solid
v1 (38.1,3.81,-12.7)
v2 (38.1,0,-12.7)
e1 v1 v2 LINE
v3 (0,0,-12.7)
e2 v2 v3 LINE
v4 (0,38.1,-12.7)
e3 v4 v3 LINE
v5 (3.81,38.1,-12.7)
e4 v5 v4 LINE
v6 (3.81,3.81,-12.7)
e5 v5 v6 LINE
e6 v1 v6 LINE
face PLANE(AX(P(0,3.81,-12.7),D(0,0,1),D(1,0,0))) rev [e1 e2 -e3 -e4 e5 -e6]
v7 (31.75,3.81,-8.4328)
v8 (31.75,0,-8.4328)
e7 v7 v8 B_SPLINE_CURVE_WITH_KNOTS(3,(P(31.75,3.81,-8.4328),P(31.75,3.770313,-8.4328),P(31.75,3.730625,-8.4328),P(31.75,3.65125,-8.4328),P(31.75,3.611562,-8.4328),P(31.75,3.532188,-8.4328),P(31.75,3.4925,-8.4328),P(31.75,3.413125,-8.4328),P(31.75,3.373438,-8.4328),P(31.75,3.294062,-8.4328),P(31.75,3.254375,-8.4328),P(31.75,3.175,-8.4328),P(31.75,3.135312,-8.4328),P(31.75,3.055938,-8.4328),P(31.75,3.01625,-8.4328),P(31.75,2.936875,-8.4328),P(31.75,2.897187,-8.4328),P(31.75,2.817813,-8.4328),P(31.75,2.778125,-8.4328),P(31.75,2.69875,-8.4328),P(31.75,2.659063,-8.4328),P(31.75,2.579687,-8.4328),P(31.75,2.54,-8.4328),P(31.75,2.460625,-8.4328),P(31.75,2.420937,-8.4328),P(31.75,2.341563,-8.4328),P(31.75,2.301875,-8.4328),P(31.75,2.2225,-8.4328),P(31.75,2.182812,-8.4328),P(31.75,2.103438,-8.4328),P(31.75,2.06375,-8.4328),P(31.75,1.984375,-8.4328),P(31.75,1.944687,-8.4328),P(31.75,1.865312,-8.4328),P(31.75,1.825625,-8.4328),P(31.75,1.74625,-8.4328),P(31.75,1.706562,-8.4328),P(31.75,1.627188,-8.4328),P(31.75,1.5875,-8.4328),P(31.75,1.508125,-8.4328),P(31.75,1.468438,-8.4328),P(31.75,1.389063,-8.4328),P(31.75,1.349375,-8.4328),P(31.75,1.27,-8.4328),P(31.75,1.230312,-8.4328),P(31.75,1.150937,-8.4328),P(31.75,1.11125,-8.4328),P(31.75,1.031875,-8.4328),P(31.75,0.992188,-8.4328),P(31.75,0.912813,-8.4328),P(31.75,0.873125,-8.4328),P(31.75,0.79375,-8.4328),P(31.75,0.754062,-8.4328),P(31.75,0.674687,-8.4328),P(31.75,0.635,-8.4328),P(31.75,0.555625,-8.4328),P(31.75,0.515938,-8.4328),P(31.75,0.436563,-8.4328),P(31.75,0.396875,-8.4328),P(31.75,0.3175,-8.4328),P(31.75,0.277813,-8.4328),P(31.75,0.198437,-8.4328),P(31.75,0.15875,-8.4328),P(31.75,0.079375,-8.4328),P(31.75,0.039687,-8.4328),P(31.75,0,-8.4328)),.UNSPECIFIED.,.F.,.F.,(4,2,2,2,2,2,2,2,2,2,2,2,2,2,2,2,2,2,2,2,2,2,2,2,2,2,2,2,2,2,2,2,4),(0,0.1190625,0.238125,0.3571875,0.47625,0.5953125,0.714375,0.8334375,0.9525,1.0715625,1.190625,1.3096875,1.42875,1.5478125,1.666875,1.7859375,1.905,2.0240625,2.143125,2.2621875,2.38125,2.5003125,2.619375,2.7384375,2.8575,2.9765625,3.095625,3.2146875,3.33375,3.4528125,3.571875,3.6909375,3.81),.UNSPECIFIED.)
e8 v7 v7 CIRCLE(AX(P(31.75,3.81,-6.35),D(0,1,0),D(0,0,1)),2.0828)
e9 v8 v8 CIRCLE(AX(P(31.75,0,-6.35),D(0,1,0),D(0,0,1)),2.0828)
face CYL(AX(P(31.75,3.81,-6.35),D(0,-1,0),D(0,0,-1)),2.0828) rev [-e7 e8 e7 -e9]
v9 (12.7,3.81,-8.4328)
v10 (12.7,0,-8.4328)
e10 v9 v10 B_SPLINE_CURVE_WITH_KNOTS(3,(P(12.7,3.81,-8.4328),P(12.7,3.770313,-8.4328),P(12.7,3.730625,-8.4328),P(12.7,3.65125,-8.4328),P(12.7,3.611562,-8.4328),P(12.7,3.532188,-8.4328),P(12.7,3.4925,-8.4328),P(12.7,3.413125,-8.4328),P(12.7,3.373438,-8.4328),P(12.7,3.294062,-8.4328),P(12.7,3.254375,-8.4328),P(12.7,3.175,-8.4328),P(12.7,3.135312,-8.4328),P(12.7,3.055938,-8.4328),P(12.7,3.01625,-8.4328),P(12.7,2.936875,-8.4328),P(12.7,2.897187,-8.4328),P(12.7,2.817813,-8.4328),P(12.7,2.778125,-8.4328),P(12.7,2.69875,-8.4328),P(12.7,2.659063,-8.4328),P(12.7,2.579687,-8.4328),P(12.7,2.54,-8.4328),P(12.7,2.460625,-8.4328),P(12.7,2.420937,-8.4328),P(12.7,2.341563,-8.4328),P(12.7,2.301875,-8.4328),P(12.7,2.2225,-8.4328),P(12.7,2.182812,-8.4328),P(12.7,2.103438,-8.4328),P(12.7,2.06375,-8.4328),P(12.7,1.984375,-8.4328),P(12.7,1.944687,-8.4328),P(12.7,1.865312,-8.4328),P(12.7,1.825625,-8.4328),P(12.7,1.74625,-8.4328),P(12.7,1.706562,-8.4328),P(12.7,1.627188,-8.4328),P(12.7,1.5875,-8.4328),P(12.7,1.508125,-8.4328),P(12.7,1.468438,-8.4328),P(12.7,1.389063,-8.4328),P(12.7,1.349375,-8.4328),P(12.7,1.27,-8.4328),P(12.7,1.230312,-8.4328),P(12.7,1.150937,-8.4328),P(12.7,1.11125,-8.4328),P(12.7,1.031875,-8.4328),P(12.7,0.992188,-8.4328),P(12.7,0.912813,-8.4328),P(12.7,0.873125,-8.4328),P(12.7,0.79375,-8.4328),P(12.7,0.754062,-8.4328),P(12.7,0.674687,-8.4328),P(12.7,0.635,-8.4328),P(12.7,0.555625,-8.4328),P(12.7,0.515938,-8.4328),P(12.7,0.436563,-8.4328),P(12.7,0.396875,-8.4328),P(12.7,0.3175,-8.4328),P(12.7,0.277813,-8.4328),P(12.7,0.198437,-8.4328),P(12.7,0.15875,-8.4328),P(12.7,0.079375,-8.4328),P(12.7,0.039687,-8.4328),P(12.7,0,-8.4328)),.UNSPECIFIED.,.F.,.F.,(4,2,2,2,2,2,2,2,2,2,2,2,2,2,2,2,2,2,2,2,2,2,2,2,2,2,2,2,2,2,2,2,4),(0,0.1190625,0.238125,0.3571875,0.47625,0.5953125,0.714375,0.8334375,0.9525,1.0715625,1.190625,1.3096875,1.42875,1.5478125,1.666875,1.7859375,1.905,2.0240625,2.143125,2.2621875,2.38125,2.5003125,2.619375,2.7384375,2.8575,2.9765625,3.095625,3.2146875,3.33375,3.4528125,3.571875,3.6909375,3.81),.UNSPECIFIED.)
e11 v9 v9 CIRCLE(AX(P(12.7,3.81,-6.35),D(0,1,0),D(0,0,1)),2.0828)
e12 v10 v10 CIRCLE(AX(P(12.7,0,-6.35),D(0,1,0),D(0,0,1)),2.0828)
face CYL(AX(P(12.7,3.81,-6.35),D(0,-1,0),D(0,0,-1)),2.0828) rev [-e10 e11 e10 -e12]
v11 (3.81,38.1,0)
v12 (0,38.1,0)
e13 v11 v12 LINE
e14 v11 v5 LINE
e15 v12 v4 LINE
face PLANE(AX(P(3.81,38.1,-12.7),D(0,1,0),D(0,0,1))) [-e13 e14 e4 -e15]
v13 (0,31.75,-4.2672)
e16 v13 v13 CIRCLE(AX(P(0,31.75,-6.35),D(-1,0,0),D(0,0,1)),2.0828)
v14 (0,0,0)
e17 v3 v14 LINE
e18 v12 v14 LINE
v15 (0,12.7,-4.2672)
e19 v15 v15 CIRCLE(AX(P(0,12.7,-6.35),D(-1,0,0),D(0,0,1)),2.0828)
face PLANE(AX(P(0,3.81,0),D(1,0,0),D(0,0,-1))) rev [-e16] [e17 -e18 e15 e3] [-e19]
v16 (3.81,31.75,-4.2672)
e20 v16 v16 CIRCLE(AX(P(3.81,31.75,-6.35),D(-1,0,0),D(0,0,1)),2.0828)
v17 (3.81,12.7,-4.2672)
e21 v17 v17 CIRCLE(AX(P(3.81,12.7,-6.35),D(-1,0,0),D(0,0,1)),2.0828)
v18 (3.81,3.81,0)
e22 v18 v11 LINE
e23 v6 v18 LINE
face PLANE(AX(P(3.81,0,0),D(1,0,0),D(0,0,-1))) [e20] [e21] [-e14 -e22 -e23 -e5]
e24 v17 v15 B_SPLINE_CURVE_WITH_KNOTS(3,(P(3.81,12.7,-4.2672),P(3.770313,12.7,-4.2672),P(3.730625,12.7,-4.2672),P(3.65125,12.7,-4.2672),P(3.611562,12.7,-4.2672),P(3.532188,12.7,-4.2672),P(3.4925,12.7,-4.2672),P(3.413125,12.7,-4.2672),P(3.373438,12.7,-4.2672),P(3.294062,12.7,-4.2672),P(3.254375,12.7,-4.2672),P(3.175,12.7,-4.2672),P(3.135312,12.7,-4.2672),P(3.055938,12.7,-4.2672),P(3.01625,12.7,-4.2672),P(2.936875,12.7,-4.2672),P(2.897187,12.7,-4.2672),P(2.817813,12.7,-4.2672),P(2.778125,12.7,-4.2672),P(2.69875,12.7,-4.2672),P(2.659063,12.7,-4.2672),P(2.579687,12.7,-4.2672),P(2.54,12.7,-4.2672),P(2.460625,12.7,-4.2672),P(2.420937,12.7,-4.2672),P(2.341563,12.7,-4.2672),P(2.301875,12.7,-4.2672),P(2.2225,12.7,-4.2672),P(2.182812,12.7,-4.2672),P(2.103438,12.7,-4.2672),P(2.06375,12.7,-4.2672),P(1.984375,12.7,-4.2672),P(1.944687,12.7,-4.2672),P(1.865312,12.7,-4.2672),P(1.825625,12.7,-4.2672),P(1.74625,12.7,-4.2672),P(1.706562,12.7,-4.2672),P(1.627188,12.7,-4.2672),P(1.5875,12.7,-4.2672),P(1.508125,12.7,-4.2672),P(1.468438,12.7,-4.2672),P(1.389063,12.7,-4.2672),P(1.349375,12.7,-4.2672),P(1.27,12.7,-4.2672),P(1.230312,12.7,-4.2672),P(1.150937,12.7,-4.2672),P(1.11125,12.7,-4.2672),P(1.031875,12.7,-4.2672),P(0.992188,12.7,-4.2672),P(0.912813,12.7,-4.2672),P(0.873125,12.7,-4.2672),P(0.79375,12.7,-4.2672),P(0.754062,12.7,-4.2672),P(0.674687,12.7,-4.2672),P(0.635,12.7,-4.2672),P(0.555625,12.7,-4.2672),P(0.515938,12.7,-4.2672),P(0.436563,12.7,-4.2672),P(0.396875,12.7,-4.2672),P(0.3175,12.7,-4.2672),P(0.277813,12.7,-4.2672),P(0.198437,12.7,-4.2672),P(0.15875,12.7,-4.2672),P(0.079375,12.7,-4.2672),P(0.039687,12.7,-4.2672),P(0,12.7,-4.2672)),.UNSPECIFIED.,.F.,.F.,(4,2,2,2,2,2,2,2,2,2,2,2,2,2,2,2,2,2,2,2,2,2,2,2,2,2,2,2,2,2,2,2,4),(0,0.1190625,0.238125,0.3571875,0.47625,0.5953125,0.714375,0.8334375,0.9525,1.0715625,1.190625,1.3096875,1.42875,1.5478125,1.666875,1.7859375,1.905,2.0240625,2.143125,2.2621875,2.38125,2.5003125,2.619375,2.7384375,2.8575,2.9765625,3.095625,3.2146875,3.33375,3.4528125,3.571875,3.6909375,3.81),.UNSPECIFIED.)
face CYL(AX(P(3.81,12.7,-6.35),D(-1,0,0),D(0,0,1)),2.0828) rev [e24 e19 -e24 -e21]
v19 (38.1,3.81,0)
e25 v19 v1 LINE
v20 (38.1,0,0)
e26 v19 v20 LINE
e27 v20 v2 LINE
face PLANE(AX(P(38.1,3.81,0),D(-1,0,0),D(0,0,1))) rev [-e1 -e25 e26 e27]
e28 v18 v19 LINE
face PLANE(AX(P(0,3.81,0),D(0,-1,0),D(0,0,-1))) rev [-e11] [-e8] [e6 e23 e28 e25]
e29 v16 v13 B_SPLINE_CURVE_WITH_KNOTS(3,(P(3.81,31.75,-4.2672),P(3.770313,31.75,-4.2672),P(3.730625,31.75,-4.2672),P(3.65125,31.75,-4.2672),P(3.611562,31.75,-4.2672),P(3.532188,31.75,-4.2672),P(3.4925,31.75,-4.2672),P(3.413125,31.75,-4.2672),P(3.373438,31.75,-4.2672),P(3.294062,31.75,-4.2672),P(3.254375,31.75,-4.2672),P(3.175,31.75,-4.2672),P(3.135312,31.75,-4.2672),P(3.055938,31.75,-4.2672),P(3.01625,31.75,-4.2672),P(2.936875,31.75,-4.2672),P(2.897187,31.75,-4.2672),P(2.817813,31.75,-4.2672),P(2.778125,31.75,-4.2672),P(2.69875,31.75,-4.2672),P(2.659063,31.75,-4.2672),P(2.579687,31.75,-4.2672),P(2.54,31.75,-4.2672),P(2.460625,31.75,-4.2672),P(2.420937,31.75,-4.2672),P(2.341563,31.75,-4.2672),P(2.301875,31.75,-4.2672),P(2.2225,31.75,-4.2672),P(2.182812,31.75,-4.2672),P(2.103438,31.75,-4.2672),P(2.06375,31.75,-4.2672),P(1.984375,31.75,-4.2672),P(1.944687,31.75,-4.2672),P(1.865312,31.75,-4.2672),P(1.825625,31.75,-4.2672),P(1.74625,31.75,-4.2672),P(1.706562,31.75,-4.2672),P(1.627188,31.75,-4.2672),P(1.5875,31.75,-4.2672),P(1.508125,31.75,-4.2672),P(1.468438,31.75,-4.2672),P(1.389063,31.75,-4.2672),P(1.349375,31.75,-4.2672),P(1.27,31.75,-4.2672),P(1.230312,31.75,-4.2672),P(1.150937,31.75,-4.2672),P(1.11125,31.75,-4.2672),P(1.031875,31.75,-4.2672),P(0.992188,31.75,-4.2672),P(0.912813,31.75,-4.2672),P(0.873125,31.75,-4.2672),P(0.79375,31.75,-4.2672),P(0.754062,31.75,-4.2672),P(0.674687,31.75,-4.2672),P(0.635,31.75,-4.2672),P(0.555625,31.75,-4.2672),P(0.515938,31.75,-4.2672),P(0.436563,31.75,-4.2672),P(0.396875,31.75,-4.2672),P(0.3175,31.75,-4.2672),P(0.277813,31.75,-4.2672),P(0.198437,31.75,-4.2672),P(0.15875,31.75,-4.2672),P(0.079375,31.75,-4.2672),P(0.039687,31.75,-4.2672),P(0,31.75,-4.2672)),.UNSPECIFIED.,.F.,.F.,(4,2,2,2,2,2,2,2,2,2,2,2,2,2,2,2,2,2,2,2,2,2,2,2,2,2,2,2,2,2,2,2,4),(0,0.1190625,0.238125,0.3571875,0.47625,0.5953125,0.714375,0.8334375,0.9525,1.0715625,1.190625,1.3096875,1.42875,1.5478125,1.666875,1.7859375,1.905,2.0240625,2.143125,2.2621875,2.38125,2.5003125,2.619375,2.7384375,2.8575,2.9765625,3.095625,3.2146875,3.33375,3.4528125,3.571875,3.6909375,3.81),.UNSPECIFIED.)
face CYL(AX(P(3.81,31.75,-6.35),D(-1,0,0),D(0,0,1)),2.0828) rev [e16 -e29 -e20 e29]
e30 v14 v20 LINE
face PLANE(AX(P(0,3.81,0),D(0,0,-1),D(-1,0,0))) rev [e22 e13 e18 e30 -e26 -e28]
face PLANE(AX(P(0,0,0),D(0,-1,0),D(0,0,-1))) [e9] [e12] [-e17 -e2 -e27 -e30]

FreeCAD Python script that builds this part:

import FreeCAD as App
import Part
import Sketcher

V = App.Vector
Q = App.Units.Quantity

doc = App.newDocument("Part")
params = doc.addObject("Spreadsheet::Sheet", "Params")
for row, (alias, value) in enumerate([
    ("sketch1_diameter", "0.164 in"),
    ("sketch1_width", "1.5 in"),
    ("sketch1_height", "0.5 in"),
    ("pad1_length", "0.15 in"),
    ("sketch2_diameter", "0.164 in"),
    ("sketch2_width", "1.5 in"),
    ("sketch2_height", "0.5 in"),
    ("pad2_length", "0.15 in"),
], start=1):
    params.set(f"A{row}", alias)
    params.set(f"B{row}", "=" + value)
    params.setAlias(f"B{row}", alias)

body = doc.addObject("PartDesign::Body", "Body")

sketch1 = doc.addObject("Sketcher::SketchObject", "Sketch")
body.addObject(sketch1)
sketch1.AttachmentSupport = (doc.XZ_Plane, [""])
sketch1.MapMode = "FlatFace"
sketch1.addGeometry([
    Part.LineSegment(V(0, -12.7, 0), V(0, 0, 0)),
    Part.LineSegment(V(0, 0, 0), V(38.1, 0, 0)),
    Part.LineSegment(V(38.1, 0, 0), V(38.1, -12.7, 0)),
    Part.LineSegment(V(38.1, -12.7, 0), V(0, -12.7, 0)),
    Part.Circle(V(12.7, -6.3, 0), V(0, 0, 1), 2.1),
    Part.Circle(V(31.8, -6.3, 0), V(0, 0, 1), 2.1),
], False)
sketch1.addConstraint([
    Sketcher.Constraint("Coincident", 0, 2, 1, 1),
    Sketcher.Constraint("Coincident", 1, 2, 2, 1),
    Sketcher.Constraint("Coincident", 2, 2, 3, 1),
    Sketcher.Constraint("Coincident", 3, 2, 0, 1),
    Sketcher.Constraint("Vertical", 0),
    Sketcher.Constraint("Horizontal", 1),
    Sketcher.Constraint("Vertical", 2),
    Sketcher.Constraint("Horizontal", 3),
    Sketcher.Constraint("Coincident", 0, 2, -1, 1),
    Sketcher.Constraint("Equal", 4, 5),
    Sketcher.Constraint("Horizontal", 4, 3, 5, 3),
    Sketcher.Constraint("Diameter", 4, Q("0.164 in")),
    Sketcher.Constraint("DistanceX", 1, 1, 1, 2, Q("1.5 in")),
    Sketcher.Constraint("DistanceY", 0, 1, 0, 2, Q("0.5 in")),
    Sketcher.Constraint("DistanceX", 4, 3, 1, 2, Q("1 in")),
    Sketcher.Constraint("DistanceY", 4, 3, -1, 1, Q("0.25 in")),
    Sketcher.Constraint("DistanceX", -1, 1, 5, 3, Q("1.25 in")),
])
sketch1.setExpression("Constraints[11]", "Params.sketch1_diameter")
sketch1.setExpression("Constraints[12]", "Params.sketch1_width")
sketch1.setExpression("Constraints[13]", "Params.sketch1_height")
pad1 = doc.addObject("PartDesign::Pad", "Pad")
body.addObject(pad1)
pad1.Profile = sketch1
pad1.setExpression("Length", "Params.pad1_length")
pad1.Reversed = True

sketch2 = doc.addObject("Sketcher::SketchObject", "Sketch001")
body.addObject(sketch2)
sketch2.AttachmentSupport = (doc.YZ_Plane, [""])
sketch2.MapMode = "FlatFace"
sketch2.addGeometry([
    Part.LineSegment(V(38.1, -12.7, 0), V(0, -12.7, 0)),
    Part.LineSegment(V(0, -12.7, 0), V(0, 0, 0)),
    Part.LineSegment(V(0, 0, 0), V(38.1, 0, 0)),
    Part.LineSegment(V(38.1, 0, 0), V(38.1, -12.7, 0)),
    Part.Circle(V(12.7, -6.3, 0), V(0, 0, 1), 2.1),
    Part.Circle(V(31.8, -6.3, 0), V(0, 0, 1), 2.1),
], False)
sketch2.addConstraint([
    Sketcher.Constraint("Coincident", 0, 2, 1, 1),
    Sketcher.Constraint("Coincident", 1, 2, 2, 1),
    Sketcher.Constraint("Coincident", 2, 2, 3, 1),
    Sketcher.Constraint("Coincident", 3, 2, 0, 1),
    Sketcher.Constraint("Horizontal", 0),
    Sketcher.Constraint("Vertical", 1),
    Sketcher.Constraint("Horizontal", 2),
    Sketcher.Constraint("Vertical", 3),
    Sketcher.Constraint("Coincident", 1, 2, -1, 1),
    Sketcher.Constraint("Equal", 4, 5),
    Sketcher.Constraint("Horizontal", 4, 3, 5, 3),
    Sketcher.Constraint("Diameter", 4, Q("0.164 in")),
    Sketcher.Constraint("DistanceX", 0, 2, 0, 1, Q("1.5 in")),
    Sketcher.Constraint("DistanceY", 1, 1, 1, 2, Q("0.5 in")),
    Sketcher.Constraint("DistanceX", 4, 3, 2, 2, Q("1 in")),
    Sketcher.Constraint("DistanceY", 4, 3, -1, 1, Q("0.25 in")),
    Sketcher.Constraint("DistanceX", -1, 1, 5, 3, Q("1.25 in")),
])
sketch2.setExpression("Constraints[11]", "Params.sketch2_diameter")
sketch2.setExpression("Constraints[12]", "Params.sketch2_width")
sketch2.setExpression("Constraints[13]", "Params.sketch2_height")
pad2 = doc.addObject("PartDesign::Pad", "Pad001")
body.addObject(pad2)
pad2.Profile = sketch2
pad2.setExpression("Length", "Params.pad2_length")

doc.recompute()
